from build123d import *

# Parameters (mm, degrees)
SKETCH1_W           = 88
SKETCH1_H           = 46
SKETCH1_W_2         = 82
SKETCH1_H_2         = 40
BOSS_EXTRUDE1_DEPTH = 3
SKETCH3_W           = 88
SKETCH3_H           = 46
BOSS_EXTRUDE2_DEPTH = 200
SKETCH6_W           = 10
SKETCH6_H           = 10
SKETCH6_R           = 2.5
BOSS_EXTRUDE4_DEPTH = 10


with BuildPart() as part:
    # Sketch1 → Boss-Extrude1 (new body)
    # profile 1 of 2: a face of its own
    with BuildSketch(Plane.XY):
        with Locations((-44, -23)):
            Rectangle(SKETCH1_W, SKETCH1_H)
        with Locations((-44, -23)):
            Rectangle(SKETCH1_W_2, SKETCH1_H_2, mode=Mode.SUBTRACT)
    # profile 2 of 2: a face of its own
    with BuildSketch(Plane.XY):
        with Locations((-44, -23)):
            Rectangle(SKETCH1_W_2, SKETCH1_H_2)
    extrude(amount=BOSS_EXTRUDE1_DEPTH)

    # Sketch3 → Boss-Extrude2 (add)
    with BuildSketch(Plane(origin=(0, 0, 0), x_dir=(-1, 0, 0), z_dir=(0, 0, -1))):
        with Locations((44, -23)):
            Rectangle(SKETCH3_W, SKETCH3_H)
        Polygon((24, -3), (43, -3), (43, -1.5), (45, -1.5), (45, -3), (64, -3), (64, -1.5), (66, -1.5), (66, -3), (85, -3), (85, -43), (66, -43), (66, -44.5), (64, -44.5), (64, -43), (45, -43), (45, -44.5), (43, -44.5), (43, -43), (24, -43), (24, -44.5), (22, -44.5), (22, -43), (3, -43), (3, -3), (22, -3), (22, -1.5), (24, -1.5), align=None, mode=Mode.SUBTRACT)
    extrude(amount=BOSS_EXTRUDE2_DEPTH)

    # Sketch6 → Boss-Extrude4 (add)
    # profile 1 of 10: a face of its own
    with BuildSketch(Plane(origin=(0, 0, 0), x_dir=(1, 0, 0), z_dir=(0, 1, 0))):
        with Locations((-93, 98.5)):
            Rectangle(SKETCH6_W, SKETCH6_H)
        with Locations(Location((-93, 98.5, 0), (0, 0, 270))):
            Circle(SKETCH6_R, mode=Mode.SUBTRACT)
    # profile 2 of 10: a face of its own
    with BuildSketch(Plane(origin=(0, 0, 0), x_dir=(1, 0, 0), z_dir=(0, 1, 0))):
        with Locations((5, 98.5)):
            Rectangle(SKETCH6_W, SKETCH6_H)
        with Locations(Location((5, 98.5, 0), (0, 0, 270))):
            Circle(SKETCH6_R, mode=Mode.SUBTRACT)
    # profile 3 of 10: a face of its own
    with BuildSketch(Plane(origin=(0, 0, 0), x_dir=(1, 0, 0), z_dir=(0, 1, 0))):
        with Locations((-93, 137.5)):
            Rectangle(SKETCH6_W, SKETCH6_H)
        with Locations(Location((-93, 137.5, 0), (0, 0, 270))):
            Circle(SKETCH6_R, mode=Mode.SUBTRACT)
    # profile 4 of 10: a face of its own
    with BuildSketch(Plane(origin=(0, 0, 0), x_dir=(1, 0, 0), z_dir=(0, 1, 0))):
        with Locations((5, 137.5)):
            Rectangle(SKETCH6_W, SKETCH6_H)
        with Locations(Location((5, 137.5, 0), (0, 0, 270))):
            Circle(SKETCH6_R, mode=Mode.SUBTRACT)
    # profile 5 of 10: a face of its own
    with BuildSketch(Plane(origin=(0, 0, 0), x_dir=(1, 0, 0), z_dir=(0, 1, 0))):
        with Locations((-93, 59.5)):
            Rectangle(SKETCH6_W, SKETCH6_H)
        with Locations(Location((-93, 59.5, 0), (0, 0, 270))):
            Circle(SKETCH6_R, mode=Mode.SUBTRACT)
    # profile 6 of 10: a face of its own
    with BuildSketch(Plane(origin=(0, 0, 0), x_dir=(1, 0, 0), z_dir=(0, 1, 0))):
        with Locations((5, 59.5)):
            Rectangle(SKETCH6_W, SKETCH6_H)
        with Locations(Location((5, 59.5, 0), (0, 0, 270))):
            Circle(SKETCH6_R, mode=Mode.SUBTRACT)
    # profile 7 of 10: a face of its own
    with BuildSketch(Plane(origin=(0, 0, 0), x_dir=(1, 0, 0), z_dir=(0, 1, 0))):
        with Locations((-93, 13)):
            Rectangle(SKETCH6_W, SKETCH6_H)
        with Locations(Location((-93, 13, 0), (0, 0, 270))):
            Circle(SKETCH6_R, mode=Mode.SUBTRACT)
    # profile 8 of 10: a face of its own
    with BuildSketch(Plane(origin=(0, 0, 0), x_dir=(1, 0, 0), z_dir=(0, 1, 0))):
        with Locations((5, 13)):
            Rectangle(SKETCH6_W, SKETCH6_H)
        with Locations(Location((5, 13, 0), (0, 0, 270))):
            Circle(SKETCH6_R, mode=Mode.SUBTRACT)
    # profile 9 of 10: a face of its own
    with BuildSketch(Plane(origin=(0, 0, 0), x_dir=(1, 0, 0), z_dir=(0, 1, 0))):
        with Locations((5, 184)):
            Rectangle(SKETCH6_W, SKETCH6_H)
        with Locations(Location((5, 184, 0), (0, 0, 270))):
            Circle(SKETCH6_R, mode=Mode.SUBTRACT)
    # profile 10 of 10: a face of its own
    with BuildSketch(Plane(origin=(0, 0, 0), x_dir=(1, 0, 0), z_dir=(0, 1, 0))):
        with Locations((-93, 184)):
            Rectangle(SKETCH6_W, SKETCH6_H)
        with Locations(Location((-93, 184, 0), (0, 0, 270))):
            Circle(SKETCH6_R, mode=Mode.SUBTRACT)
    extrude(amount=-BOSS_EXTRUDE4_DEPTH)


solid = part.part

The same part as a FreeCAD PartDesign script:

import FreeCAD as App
import Part
import Sketcher

doc = App.newDocument("Part")
body = doc.addObject("PartDesign::Body", "Body")

# Sketch on XY plane
sketch1 = body.newObject("Sketcher::SketchObject", "Sketch")
sketch1.AttachmentSupport = (doc.getObject("XY_Plane"), [""])
sketch1.MapMode = "FlatFace"
sketch1.addGeometry(Part.LineSegment(App.Vector(-88, 0, 0), App.Vector(-88, -46, 0)), False)
sketch1.addGeometry(Part.LineSegment(App.Vector(-88, -46, 0), App.Vector(0, -46, 0)), False)
sketch1.addGeometry(Part.LineSegment(App.Vector(0, -46, 0), App.Vector(0, 0, 0)), False)
sketch1.addGeometry(Part.LineSegment(App.Vector(0, 0, 0), App.Vector(-88, 0, 0)), False)
sketch1.addConstraint(Sketcher.Constraint("Coincident", 0, 2, 1, 1))
sketch1.addConstraint(Sketcher.Constraint("Coincident", 1, 2, 2, 1))
sketch1.addConstraint(Sketcher.Constraint("Coincident", 2, 2, 3, 1))
sketch1.addConstraint(Sketcher.Constraint("Coincident", 3, 2, 0, 1))
sketch1.addConstraint(Sketcher.Constraint("Vertical", 0))
sketch1.addConstraint(Sketcher.Constraint("Horizontal", 1))
sketch1.addConstraint(Sketcher.Constraint("Vertical", 2))
sketch1.addConstraint(Sketcher.Constraint("Horizontal", 3))
sketch1.addConstraint(Sketcher.Constraint("Coincident", 2, 2, -1, 1))
sketch1.addConstraint(Sketcher.Constraint("DistanceX", 1, 1, 1, 2, 88.0))
sketch1.addConstraint(Sketcher.Constraint("DistanceY", 0, 2, 0, 1, 46.0))
pad1 = body.newObject("PartDesign::Pad", "Pad")
pad1.Profile = sketch1
pad1.Length = 3

# Sketch on XY plane
sketch2 = body.newObject("Sketcher::SketchObject", "Sketch001")
sketch2.AttachmentSupport = (doc.getObject("XY_Plane"), [""])
sketch2.MapMode = "FlatFace"
sketch2.addGeometry(Part.LineSegment(App.Vector(0, 0, 0), App.Vector(0, -46, 0)), False)
sketch2.addGeometry(Part.LineSegment(App.Vector(0, -46, 0), App.Vector(-88, -46, 0)), False)
sketch2.addGeometry(Part.LineSegment(App.Vector(-88, -46, 0), App.Vector(-88, 0, 0)), False)
sketch2.addGeometry(Part.LineSegment(App.Vector(-88, 0, 0), App.Vector(0, 0, 0)), False)
sketch2.addGeometry(Part.LineSegment(App.Vector(-24, -1.5, 0), App.Vector(-24, -3, 0)), False)
sketch2.addGeometry(Part.LineSegment(App.Vector(-24, -3, 0), App.Vector(-43, -3, 0)), False)
sketch2.addGeometry(Part.LineSegment(App.Vector(-43, -3, 0), App.Vector(-43, -1.5, 0)), False)
sketch2.addGeometry(Part.LineSegment(App.Vector(-43, -1.5, 0), App.Vector(-45, -1.5, 0)), False)
sketch2.addGeometry(Part.LineSegment(App.Vector(-45, -1.5, 0), App.Vector(-45, -3, 0)), False)
sketch2.addGeometry(Part.LineSegment(App.Vector(-45, -3, 0), App.Vector(-64, -3, 0)), False)
sketch2.addGeometry(Part.LineSegment(App.Vector(-64, -3, 0), App.Vector(-64, -1.5, 0)), False)
sketch2.addGeometry(Part.LineSegment(App.Vector(-64, -1.5, 0), App.Vector(-66, -1.5, 0)), False)
sketch2.addGeometry(Part.LineSegment(App.Vector(-66, -1.5, 0), App.Vector(-66, -3, 0)), False)
sketch2.addGeometry(Part.LineSegment(App.Vector(-66, -3, 0), App.Vector(-85, -3, 0)), False)
sketch2.addGeometry(Part.LineSegment(App.Vector(-85, -3, 0), App.Vector(-85, -43, 0)), False)
sketch2.addGeometry(Part.LineSegment(App.Vector(-85, -43, 0), App.Vector(-66, -43, 0)), False)
sketch2.addGeometry(Part.LineSegment(App.Vector(-66, -43, 0), App.Vector(-66, -44.5, 0)), False)
sketch2.addGeometry(Part.LineSegment(App.Vector(-66, -44.5, 0), App.Vector(-64, -44.5, 0)), False)
sketch2.addGeometry(Part.LineSegment(App.Vector(-64, -44.5, 0), App.Vector(-64, -43, 0)), False)
sketch2.addGeometry(Part.LineSegment(App.Vector(-64, -43, 0), App.Vector(-45, -43, 0)), False)
sketch2.addGeometry(Part.LineSegment(App.Vector(-45, -43, 0), App.Vector(-45, -44.5, 0)), False)
sketch2.addGeometry(Part.LineSegment(App.Vector(-45, -44.5, 0), App.Vector(-43, -44.5, 0)), False)
sketch2.addGeometry(Part.LineSegment(App.Vector(-43, -44.5, 0), App.Vector(-43, -43, 0)), False)
sketch2.addGeometry(Part.LineSegment(App.Vector(-43, -43, 0), App.Vector(-24, -43, 0)), False)
sketch2.addGeometry(Part.LineSegment(App.Vector(-24, -43, 0), App.Vector(-24, -44.5, 0)), False)
sketch2.addGeometry(Part.LineSegment(App.Vector(-24, -44.5, 0), App.Vector(-22, -44.5, 0)), False)
sketch2.addGeometry(Part.LineSegment(App.Vector(-22, -44.5, 0), App.Vector(-22, -43, 0)), False)
sketch2.addGeometry(Part.LineSegment(App.Vector(-22, -43, 0), App.Vector(-3, -43, 0)), False)
sketch2.addGeometry(Part.LineSegment(App.Vector(-3, -43, 0), App.Vector(-3, -3, 0)), False)
sketch2.addGeometry(Part.LineSegment(App.Vector(-3, -3, 0), App.Vector(-22, -3, 0)), False)
sketch2.addGeometry(Part.LineSegment(App.Vector(-22, -3, 0), App.Vector(-22, -1.5, 0)), False)
sketch2.addGeometry(Part.LineSegment(App.Vector(-22, -1.5, 0), App.Vector(-24, -1.5, 0)), False)
sketch2.addConstraint(Sketcher.Constraint("Coincident", 0, 2, 1, 1))
sketch2.addConstraint(Sketcher.Constraint("Coincident", 1, 2, 2, 1))
sketch2.addConstraint(Sketcher.Constraint("Coincident", 2, 2, 3, 1))
sketch2.addConstraint(Sketcher.Constraint("Coincident", 3, 2, 0, 1))
sketch2.addConstraint(Sketcher.Constraint("Coincident", 4, 2, 5, 1))
sketch2.addConstraint(Sketcher.Constraint("Coincident", 5, 2, 6, 1))
sketch2.addConstraint(Sketcher.Constraint("Coincident", 6, 2, 7, 1))
sketch2.addConstraint(Sketcher.Constraint("Coincident", 7, 2, 8, 1))
sketch2.addConstraint(Sketcher.Constraint("Coincident", 8, 2, 9, 1))
sketch2.addConstraint(Sketcher.Constraint("Coincident", 9, 2, 10, 1))
sketch2.addConstraint(Sketcher.Constraint("Coincident", 10, 2, 11, 1))
sketch2.addConstraint(Sketcher.Constraint("Coincident", 11, 2, 12, 1))
sketch2.addConstraint(Sketcher.Constraint("Coincident", 12, 2, 13, 1))
sketch2.addConstraint(Sketcher.Constraint("Coincident", 13, 2, 14, 1))
sketch2.addConstraint(Sketcher.Constraint("Coincident", 14, 2, 15, 1))
sketch2.addConstraint(Sketcher.Constraint("Coincident", 15, 2, 16, 1))
sketch2.addConstraint(Sketcher.Constraint("Coincident", 16, 2, 17, 1))
sketch2.addConstraint(Sketcher.Constraint("Coincident", 17, 2, 18, 1))
sketch2.addConstraint(Sketcher.Constraint("Coincident", 18, 2, 19, 1))
sketch2.addConstraint(Sketcher.Constraint("Coincident", 19, 2, 20, 1))
sketch2.addConstraint(Sketcher.Constraint("Coincident", 20, 2, 21, 1))
sketch2.addConstraint(Sketcher.Constraint("Coincident", 21, 2, 22, 1))
sketch2.addConstraint(Sketcher.Constraint("Coincident", 22, 2, 23, 1))
sketch2.addConstraint(Sketcher.Constraint("Coincident", 23, 2, 24, 1))
sketch2.addConstraint(Sketcher.Constraint("Coincident", 24, 2, 25, 1))
sketch2.addConstraint(Sketcher.Constraint("Coincident", 25, 2, 26, 1))
sketch2.addConstraint(Sketcher.Constraint("Coincident", 26, 2, 27, 1))
sketch2.addConstraint(Sketcher.Constraint("Coincident", 27, 2, 28, 1))
sketch2.addConstraint(Sketcher.Constraint("Coincident", 28, 2, 29, 1))
sketch2.addConstraint(Sketcher.Constraint("Coincident", 29, 2, 30, 1))
sketch2.addConstraint(Sketcher.Constraint("Coincident", 30, 2, 31, 1))
sketch2.addConstraint(Sketcher.Constraint("Coincident", 31, 2, 4, 1))
sketch2.addConstraint(Sketcher.Constraint("Vertical", 0))
sketch2.addConstraint(Sketcher.Constraint("Horizontal", 1))
sketch2.addConstraint(Sketcher.Constraint("Vertical", 2))
sketch2.addConstraint(Sketcher.Constraint("Horizontal", 3))
sketch2.addConstraint(Sketcher.Constraint("Vertical", 4))
sketch2.addConstraint(Sketcher.Constraint("Horizontal", 5))
sketch2.addConstraint(Sketcher.Constraint("Vertical", 6))
sketch2.addConstraint(Sketcher.Constraint("Horizontal", 7))
sketch2.addConstraint(Sketcher.Constraint("Vertical", 8))
sketch2.addConstraint(Sketcher.Constraint("Horizontal", 9))
sketch2.addConstraint(Sketcher.Constraint("Vertical", 10))
sketch2.addConstraint(Sketcher.Constraint("Horizontal", 11))
sketch2.addConstraint(Sketcher.Constraint("Vertical", 12))
sketch2.addConstraint(Sketcher.Constraint("Horizontal", 13))
sketch2.addConstraint(Sketcher.Constraint("Vertical", 14))
sketch2.addConstraint(Sketcher.Constraint("Horizontal", 15))
sketch2.addConstraint(Sketcher.Constraint("Vertical", 16))
sketch2.addConstraint(Sketcher.Constraint("Horizontal", 17))
sketch2.addConstraint(Sketcher.Constraint("Vertical", 18))
sketch2.addConstraint(Sketcher.Constraint("Horizontal", 19))
sketch2.addConstraint(Sketcher.Constraint("Vertical", 20))
sketch2.addConstraint(Sketcher.Constraint("Horizontal", 21))
sketch2.addConstraint(Sketcher.Constraint("Vertical", 22))
sketch2.addConstraint(Sketcher.Constraint("Horizontal", 23))
sketch2.addConstraint(Sketcher.Constraint("Vertical", 24))
sketch2.addConstraint(Sketcher.Constraint("Horizontal", 25))
sketch2.addConstraint(Sketcher.Constraint("Vertical", 26))
sketch2.addConstraint(Sketcher.Constraint("Horizontal", 27))
sketch2.addConstraint(Sketcher.Constraint("Vertical", 28))
sketch2.addConstraint(Sketcher.Constraint("Horizontal", 29))
sketch2.addConstraint(Sketcher.Constraint("Vertical", 30))
sketch2.addConstraint(Sketcher.Constraint("Horizontal", 31))
sketch2.addConstraint(Sketcher.Constraint("Coincident", 3, 2, -1, 1))
sketch2.addConstraint(Sketcher.Constraint("Horizontal", 5, 2, 8, 2))
sketch2.addConstraint(Sketcher.Constraint("Horizontal", 7, 2, 10, 2))
sketch2.addConstraint(Sketcher.Constraint("Horizontal", 9, 2, 12, 2))
sketch2.addConstraint(Sketcher.Constraint("Horizontal", 15, 2, 18, 2))
sketch2.addConstraint(Sketcher.Constraint("Horizontal", 17, 2, 20, 2))
sketch2.addConstraint(Sketcher.Constraint("Horizontal", 19, 2, 22, 2))
sketch2.addConstraint(Sketcher.Constraint("Horizontal", 21, 2, 24, 2))
sketch2.addConstraint(Sketcher.Constraint("Horizontal", 23, 2, 26, 2))
sketch2.addConstraint(Sketcher.Constraint("Horizontal", 13, 2, 28, 2))
sketch2.addConstraint(Sketcher.Constraint("Horizontal", 11, 2, 30, 2))
sketch2.addConstraint(Sketcher.Constraint("Vertical", 12, 2, 15, 2))
sketch2.addConstraint(Sketcher.Constraint("Vertical", 10, 2, 17, 2))
sketch2.addConstraint(Sketcher.Constraint("Vertical", 8, 2, 19, 2))
sketch2.addConstraint(Sketcher.Constraint("Vertical", 6, 2, 21, 2))
sketch2.addConstraint(Sketcher.Constraint("Vertical", 4, 2, 23, 2))
sketch2.addConstraint(Sketcher.Constraint("Vertical", 26, 2, 29, 2))
sketch2.addConstraint(Sketcher.Constraint("Equal", 5, 9))
sketch2.addConstraint(Sketcher.Constraint("Equal", 7, 11))
sketch2.addConstraint(Sketcher.Constraint("Equal", 9, 13))
sketch2.addConstraint(Sketcher.Constraint("Equal", 21, 25))
sketch2.addConstraint(Sketcher.Constraint("Equal", 23, 27))
sketch2.addConstraint(Sketcher.Constraint("Equal", 12, 16))
sketch2.addConstraint(Sketcher.Constraint("DistanceX", 1, 2, 1, 1, 88.0))
sketch2.addConstraint(Sketcher.Constraint("DistanceX", 5, 2, 5, 1, 19.0))
sketch2.addConstraint(Sketcher.Constraint("DistanceX", 7, 2, 7, 1, 2.0))
sketch2.addConstraint(Sketcher.Constraint("DistanceY", 0, 2, 0, 1, 46.0))
sketch2.addConstraint(Sketcher.Constraint("DistanceY", 14, 2, 14, 1, 40.0))
sketch2.addConstraint(Sketcher.Constraint("DistanceY", 4, 2, 4, 1, 1.5))
sketch2.addConstraint(Sketcher.Constraint("DistanceX", 4, 2, -1, 1, 24.0))
sketch2.addConstraint(Sketcher.Constraint("DistanceY", 4, 2, -1, 1, 3.0))
pad2 = body.newObject("PartDesign::Pad", "Pad001")
pad2.Profile = sketch2
pad2.Length = 200
pad2.Reversed = True

# Sketch on XZ plane
sketch3 = body.newObject("Sketcher::SketchObject", "Sketch002")
sketch3.AttachmentSupport = (doc.getObject("XZ_Plane"), [""])
sketch3.MapMode = "FlatFace"
sketch3.addGeometry(Part.LineSegment(App.Vector(-98, -103.5, 0), App.Vector(-98, -93.5, 0)), False)
sketch3.addGeometry(Part.LineSegment(App.Vector(-98, -93.5, 0), App.Vector(-88, -93.5, 0)), False)
sketch3.addGeometry(Part.LineSegment(App.Vector(-88, -93.5, 0), App.Vector(-88, -103.5, 0)), False)
sketch3.addGeometry(Part.LineSegment(App.Vector(-88, -103.5, 0), App.Vector(-98, -103.5, 0)), False)
sketch3.addGeometry(Part.Circle(App.Vector(-93, -98.5, 0), App.Vector(0, 0, 1), 2.5), False)
sketch3.addGeometry(Part.LineSegment(App.Vector(0, -103.5, 0), App.Vector(0, -93.5, 0)), False)
sketch3.addGeometry(Part.LineSegment(App.Vector(0, -93.5, 0), App.Vector(10, -93.5, 0)), False)
sketch3.addGeometry(Part.LineSegment(App.Vector(10, -93.5, 0), App.Vector(10, -103.5, 0)), False)
sketch3.addGeometry(Part.LineSegment(App.Vector(10, -103.5, 0), App.Vector(0, -103.5, 0)), False)
sketch3.addGeometry(Part.Circle(App.Vector(5, -98.5, 0), App.Vector(0, 0, 1), 2.5), False)
sketch3.addGeometry(Part.LineSegment(App.Vector(-98, -142.5, 0), App.Vector(-98, -132.5, 0)), False)
sketch3.addGeometry(Part.LineSegment(App.Vector(-98, -132.5, 0), App.Vector(-88, -132.5, 0)), False)
sketch3.addGeometry(Part.LineSegment(App.Vector(-88, -132.5, 0), App.Vector(-88, -142.5, 0)), False)
sketch3.addGeometry(Part.LineSegment(App.Vector(-88, -142.5, 0), App.Vector(-98, -142.5, 0)), False)
sketch3.addGeometry(Part.Circle(App.Vector(-93, -137.5, 0), App.Vector(0, 0, 1), 2.5), False)
sketch3.addGeometry(Part.LineSegment(App.Vector(0, -142.5, 0), App.Vector(0, -132.5, 0)), False)
sketch3.addGeometry(Part.LineSegment(App.Vector(0, -132.5, 0), App.Vector(10, -132.5, 0)), False)
sketch3.addGeometry(Part.LineSegment(App.Vector(10, -132.5, 0), App.Vector(10, -142.5, 0)), False)
sketch3.addGeometry(Part.LineSegment(App.Vector(10, -142.5, 0), App.Vector(0, -142.5, 0)), False)
sketch3.addGeometry(Part.Circle(App.Vector(5, -137.5, 0), App.Vector(0, 0, 1), 2.5), False)
sketch3.addGeometry(Part.LineSegment(App.Vector(-98, -64.5, 0), App.Vector(-98, -54.5, 0)), False)
sketch3.addGeometry(Part.LineSegment(App.Vector(-98, -54.5, 0), App.Vector(-88, -54.5, 0)), False)
sketch3.addGeometry(Part.LineSegment(App.Vector(-88, -54.5, 0), App.Vector(-88, -64.5, 0)), False)
sketch3.addGeometry(Part.LineSegment(App.Vector(-88, -64.5, 0), App.Vector(-98, -64.5, 0)), False)
sketch3.addGeometry(Part.Circle(App.Vector(-93, -59.5, 0), App.Vector(0, 0, 1), 2.5), False)
sketch3.addGeometry(Part.LineSegment(App.Vector(0, -64.5, 0), App.Vector(0, -54.5, 0)), False)
sketch3.addGeometry(Part.LineSegment(App.Vector(0, -54.5, 0), App.Vector(10, -54.5, 0)), False)
sketch3.addGeometry(Part.LineSegment(App.Vector(10, -54.5, 0), App.Vector(10, -64.5, 0)), False)
sketch3.addGeometry(Part.LineSegment(App.Vector(10, -64.5, 0), App.Vector(0, -64.5, 0)), False)
sketch3.addGeometry(Part.Circle(App.Vector(5, -59.5, 0), App.Vector(0, 0, 1), 2.5), False)
sketch3.addGeometry(Part.LineSegment(App.Vector(-98, -18, 0), App.Vector(-98, -8, 0)), False)
sketch3.addGeometry(Part.LineSegment(App.Vector(-98, -8, 0), App.Vector(-88, -8, 0)), False)
sketch3.addGeometry(Part.LineSegment(App.Vector(-88, -8, 0), App.Vector(-88, -18, 0)), False)
sketch3.addGeometry(Part.LineSegment(App.Vector(-88, -18, 0), App.Vector(-98, -18, 0)), False)
sketch3.addGeometry(Part.Circle(App.Vector(-93, -13, 0), App.Vector(0, 0, 1), 2.5), False)
sketch3.addGeometry(Part.LineSegment(App.Vector(0, -18, 0), App.Vector(0, -8, 0)), False)
sketch3.addGeometry(Part.LineSegment(App.Vector(0, -8, 0), App.Vector(10, -8, 0)), False)
sketch3.addGeometry(Part.LineSegment(App.Vector(10, -8, 0), App.Vector(10, -18, 0)), False)
sketch3.addGeometry(Part.LineSegment(App.Vector(10, -18, 0), App.Vector(0, -18, 0)), False)
sketch3.addGeometry(Part.Circle(App.Vector(5, -13, 0), App.Vector(0, 0, 1), 2.5), False)
sketch3.addGeometry(Part.LineSegment(App.Vector(0, -189, 0), App.Vector(0, -179, 0)), False)
sketch3.addGeometry(Part.LineSegment(App.Vector(0, -179, 0), App.Vector(10, -179, 0)), False)
sketch3.addGeometry(Part.LineSegment(App.Vector(10, -179, 0), App.Vector(10, -189, 0)), False)
sketch3.addGeometry(Part.LineSegment(App.Vector(10, -189, 0), App.Vector(0, -189, 0)), False)
sketch3.addGeometry(Part.Circle(App.Vector(5, -184, 0), App.Vector(0, 0, 1), 2.5), False)
sketch3.addGeometry(Part.LineSegment(App.Vector(-98, -189, 0), App.Vector(-98, -179, 0)), False)
sketch3.addGeometry(Part.LineSegment(App.Vector(-98, -179, 0), App.Vector(-88, -179, 0)), False)
sketch3.addGeometry(Part.LineSegment(App.Vector(-88, -179, 0), App.Vector(-88, -189, 0)), False)
sketch3.addGeometry(Part.LineSegment(App.Vector(-88, -189, 0), App.Vector(-98, -189, 0)), False)
sketch3.addGeometry(Part.Circle(App.Vector(-93, -184, 0), App.Vector(0, 0, 1), 2.5), False)
sketch3.addConstraint(Sketcher.Constraint("Coincident", 0, 2, 1, 1))
sketch3.addConstraint(Sketcher.Constraint("Coincident", 1, 2, 2, 1))
sketch3.addConstraint(Sketcher.Constraint("Coincident", 2, 2, 3, 1))
sketch3.addConstraint(Sketcher.Constraint("Coincident", 3, 2, 0, 1))
sketch3.addConstraint(Sketcher.Constraint("Coincident", 5, 2, 6, 1))
sketch3.addConstraint(Sketcher.Constraint("Coincident", 6, 2, 7, 1))
sketch3.addConstraint(Sketcher.Constraint("Coincident", 7, 2, 8, 1))
sketch3.addConstraint(Sketcher.Constraint("Coincident", 8, 2, 5, 1))
sketch3.addConstraint(Sketcher.Constraint("Coincident", 10, 2, 11, 1))
sketch3.addConstraint(Sketcher.Constraint("Coincident", 11, 2, 12, 1))
sketch3.addConstraint(Sketcher.Constraint("Coincident", 12, 2, 13, 1))
sketch3.addConstraint(Sketcher.Constraint("Coincident", 13, 2, 10, 1))
sketch3.addConstraint(Sketcher.Constraint("Coincident", 15, 2, 16, 1))
sketch3.addConstraint(Sketcher.Constraint("Coincident", 16, 2, 17, 1))
sketch3.addConstraint(Sketcher.Constraint("Coincident", 17, 2, 18, 1))
sketch3.addConstraint(Sketcher.Constraint("Coincident", 18, 2, 15, 1))
sketch3.addConstraint(Sketcher.Constraint("Coincident", 20, 2, 21, 1))
sketch3.addConstraint(Sketcher.Constraint("Coincident", 21, 2, 22, 1))
sketch3.addConstraint(Sketcher.Constraint("Coincident", 22, 2, 23, 1))
sketch3.addConstraint(Sketcher.Constraint("Coincident", 23, 2, 20, 1))
sketch3.addConstraint(Sketcher.Constraint("Coincident", 25, 2, 26, 1))
sketch3.addConstraint(Sketcher.Constraint("Coincident", 26, 2, 27, 1))
sketch3.addConstraint(Sketcher.Constraint("Coincident", 27, 2, 28, 1))
sketch3.addConstraint(Sketcher.Constraint("Coincident", 28, 2, 25, 1))
sketch3.addConstraint(Sketcher.Constraint("Coincident", 30, 2, 31, 1))
sketch3.addConstraint(Sketcher.Constraint("Coincident", 31, 2, 32, 1))
sketch3.addConstraint(Sketcher.Constraint("Coincident", 32, 2, 33, 1))
sketch3.addConstraint(Sketcher.Constraint("Coincident", 33, 2, 30, 1))
sketch3.addConstraint(Sketcher.Constraint("Coincident", 35, 2, 36, 1))
sketch3.addConstraint(Sketcher.Constraint("Coincident", 36, 2, 37, 1))
sketch3.addConstraint(Sketcher.Constraint("Coincident", 37, 2, 38, 1))
sketch3.addConstraint(Sketcher.Constraint("Coincident", 38, 2, 35, 1))
sketch3.addConstraint(Sketcher.Constraint("Coincident", 40, 2, 41, 1))
sketch3.addConstraint(Sketcher.Constraint("Coincident", 41, 2, 42, 1))
sketch3.addConstraint(Sketcher.Constraint("Coincident", 42, 2, 43, 1))
sketch3.addConstraint(Sketcher.Constraint("Coincident", 43, 2, 40, 1))
sketch3.addConstraint(Sketcher.Constraint("Coincident", 45, 2, 46, 1))
sketch3.addConstraint(Sketcher.Constraint("Coincident", 46, 2, 47, 1))
sketch3.addConstraint(Sketcher.Constraint("Coincident", 47, 2, 48, 1))
sketch3.addConstraint(Sketcher.Constraint("Coincident", 48, 2, 45, 1))
sketch3.addConstraint(Sketcher.Constraint("Vertical", 0))
sketch3.addConstraint(Sketcher.Constraint("Horizontal", 1))
sketch3.addConstraint(Sketcher.Constraint("Vertical", 2))
sketch3.addConstraint(Sketcher.Constraint("Horizontal", 3))
sketch3.addConstraint(Sketcher.Constraint("Vertical", 5))
sketch3.addConstraint(Sketcher.Constraint("Horizontal", 6))
sketch3.addConstraint(Sketcher.Constraint("Vertical", 7))
sketch3.addConstraint(Sketcher.Constraint("Horizontal", 8))
sketch3.addConstraint(Sketcher.Constraint("Vertical", 10))
sketch3.addConstraint(Sketcher.Constraint("Horizontal", 11))
sketch3.addConstraint(Sketcher.Constraint("Vertical", 12))
sketch3.addConstraint(Sketcher.Constraint("Horizontal", 13))
sketch3.addConstraint(Sketcher.Constraint("Vertical", 15))
sketch3.addConstraint(Sketcher.Constraint("Horizontal", 16))
sketch3.addConstraint(Sketcher.Constraint("Vertical", 17))
sketch3.addConstraint(Sketcher.Constraint("Horizontal", 18))
sketch3.addConstraint(Sketcher.Constraint("Vertical", 20))
sketch3.addConstraint(Sketcher.Constraint("Horizontal", 21))
sketch3.addConstraint(Sketcher.Constraint("Vertical", 22))
sketch3.addConstraint(Sketcher.Constraint("Horizontal", 23))
sketch3.addConstraint(Sketcher.Constraint("Vertical", 25))
sketch3.addConstraint(Sketcher.Constraint("Horizontal", 26))
sketch3.addConstraint(Sketcher.Constraint("Vertical", 27))
sketch3.addConstraint(Sketcher.Constraint("Horizontal", 28))
sketch3.addConstraint(Sketcher.Constraint("Vertical", 30))
sketch3.addConstraint(Sketcher.Constraint("Horizontal", 31))
sketch3.addConstraint(Sketcher.Constraint("Vertical", 32))
sketch3.addConstraint(Sketcher.Constraint("Horizontal", 33))
sketch3.addConstraint(Sketcher.Constraint("Vertical", 35))
sketch3.addConstraint(Sketcher.Constraint("Horizontal", 36))
sketch3.addConstraint(Sketcher.Constraint("Vertical", 37))
sketch3.addConstraint(Sketcher.Constraint("Horizontal", 38))
sketch3.addConstraint(Sketcher.Constraint("Vertical", 40))
sketch3.addConstraint(Sketcher.Constraint("Horizontal", 41))
sketch3.addConstraint(Sketcher.Constraint("Vertical", 42))
sketch3.addConstraint(Sketcher.Constraint("Horizontal", 43))
sketch3.addConstraint(Sketcher.Constraint("Vertical", 45))
sketch3.addConstraint(Sketcher.Constraint("Horizontal", 46))
sketch3.addConstraint(Sketcher.Constraint("Vertical", 47))
sketch3.addConstraint(Sketcher.Constraint("Horizontal", 48))
sketch3.addConstraint(Sketcher.Constraint("Equal", 4, 9))
sketch3.addConstraint(Sketcher.Constraint("Equal", 9, 14))
sketch3.addConstraint(Sketcher.Constraint("Equal", 14, 19))
sketch3.addConstraint(Sketcher.Constraint("Equal", 19, 24))
sketch3.addConstraint(Sketcher.Constraint("Equal", 24, 29))
sketch3.addConstraint(Sketcher.Constraint("Equal", 29, 34))
sketch3.addConstraint(Sketcher.Constraint("Equal", 34, 39))
sketch3.addConstraint(Sketcher.Constraint("Equal", 39, 44))
sketch3.addConstraint(Sketcher.Constraint("Equal", 44, 49))
sketch3.addConstraint(Sketcher.Constraint("PointOnObject", 5, 2, -2))
sketch3.addConstraint(Sketcher.Constraint("PointOnObject", 15, 2, -2))
sketch3.addConstraint(Sketcher.Constraint("PointOnObject", 25, 2, -2))
sketch3.addConstraint(Sketcher.Constraint("PointOnObject", 35, 2, -2))
sketch3.addConstraint(Sketcher.Constraint("PointOnObject", 40, 2, -2))
sketch3.addConstraint(Sketcher.Constraint("Horizontal", 4, 3, 9, 3))
sketch3.addConstraint(Sketcher.Constraint("Horizontal", 14, 3, 19, 3))
sketch3.addConstraint(Sketcher.Constraint("Horizontal", 24, 3, 29, 3))
sketch3.addConstraint(Sketcher.Constraint("Horizontal", 34, 3, 39, 3))
sketch3.addConstraint(Sketcher.Constraint("Horizontal", 44, 3, 49, 3))
sketch3.addConstraint(Sketcher.Constraint("Horizontal", 1, 2, 5, 2))
sketch3.addConstraint(Sketcher.Constraint("Horizontal", 3, 2, 7, 2))
sketch3.addConstraint(Sketcher.Constraint("Horizontal", 11, 2, 15, 2))
sketch3.addConstraint(Sketcher.Constraint("Horizontal", 13, 2, 17, 2))
sketch3.addConstraint(Sketcher.Constraint("Horizontal", 21, 2, 25, 2))
sketch3.addConstraint(Sketcher.Constraint("Horizontal", 23, 2, 27, 2))
sketch3.addConstraint(Sketcher.Constraint("Horizontal", 31, 2, 35, 2))
sketch3.addConstraint(Sketcher.Constraint("Horizontal", 33, 2, 37, 2))
sketch3.addConstraint(Sketcher.Constraint("Horizontal", 41, 2, 45, 2))
sketch3.addConstraint(Sketcher.Constraint("Horizontal", 43, 2, 47, 2))
sketch3.addConstraint(Sketcher.Constraint("Vertical", 4, 3, 14, 3))
sketch3.addConstraint(Sketcher.Constraint("Vertical", 9, 3, 19, 3))
sketch3.addConstraint(Sketcher.Constraint("Vertical", 14, 3, 24, 3))
sketch3.addConstraint(Sketcher.Constraint("Vertical", 19, 3, 29, 3))
sketch3.addConstraint(Sketcher.Constraint("Vertical", 24, 3, 34, 3))
sketch3.addConstraint(Sketcher.Constraint("Vertical", 29, 3, 39, 3))
sketch3.addConstraint(Sketcher.Constraint("Vertical", 39, 3, 44, 3))
sketch3.addConstraint(Sketcher.Constraint("Vertical", 34, 3, 49, 3))
sketch3.addConstraint(Sketcher.Constraint("Vertical", 3, 2, 10, 2))
sketch3.addConstraint(Sketcher.Constraint("Vertical", 2, 2, 11, 2))
sketch3.addConstraint(Sketcher.Constraint("Vertical", 7, 2, 16, 2))
sketch3.addConstraint(Sketcher.Constraint("Vertical", 13, 2, 20, 2))
sketch3.addConstraint(Sketcher.Constraint("Vertical", 12, 2, 21, 2))
sketch3.addConstraint(Sketcher.Constraint("Vertical", 17, 2, 26, 2))
sketch3.addConstraint(Sketcher.Constraint("Vertical", 23, 2, 30, 2))
sketch3.addConstraint(Sketcher.Constraint("Vertical", 22, 2, 31, 2))
sketch3.addConstraint(Sketcher.Constraint("Vertical", 27, 2, 36, 2))
sketch3.addConstraint(Sketcher.Constraint("Vertical", 37, 2, 41, 2))
sketch3.addConstraint(Sketcher.Constraint("Vertical", 33, 2, 45, 2))
sketch3.addConstraint(Sketcher.Constraint("Vertical", 32, 2, 46, 2))
sketch3.addConstraint(Sketcher.Constraint("Equal", 3, 6))
sketch3.addConstraint(Sketcher.Constraint("Equal", 48, 0))
sketch3.addConstraint(Sketcher.Constraint("Equal", 7, 10))
sketch3.addConstraint(Sketcher.Constraint("Equal", 17, 20))
sketch3.addConstraint(Sketcher.Constraint("Equal", 27, 30))
sketch3.addConstraint(Sketcher.Constraint("Equal", 37, 40))
sketch3.addConstraint(Sketcher.Constraint("Diameter", 4, 5.0))
sketch3.addConstraint(Sketcher.Constraint("DistanceX", 1, 1, 1, 2, 10.0))
sketch3.addConstraint(Sketcher.Constraint("DistanceX", 4, 3, -1, 1, 93.0))
sketch3.addConstraint(Sketcher.Constraint("DistanceX", -1, 1, 9, 3, 5.0))
sketch3.addConstraint(Sketcher.Constraint("DistanceY", 34, 3, -1, 1, 13.0))
sketch3.addConstraint(Sketcher.Constraint("DistanceY", 44, 3, -1, 1, 184.0))
sketch3.addConstraint(Sketcher.Constraint("DistanceX", 0, 2, -1, 1, 98.0))
sketch3.addConstraint(Sketcher.Constraint("DistanceY", 30, 2, -1, 1, 8.0))
sketch3.addConstraint(Sketcher.Constraint("DistanceY", 40, 2, -1, 1, 179.0))
sketch3.addConstraint(Sketcher.Constraint("DistanceY", 14, 3, 4, 3, 39.0))
sketch3.addConstraint(Sketcher.Constraint("DistanceY", 4, 3, 24, 3, 39.0))
sketch3.addConstraint(Sketcher.Constraint("DistanceY", 4, 3, 0, 2, 5.0))
sketch3.addConstraint(Sketcher.Constraint("DistanceY", 14, 3, 10, 2, 5.0))
sketch3.addConstraint(Sketcher.Constraint("DistanceY", 24, 3, 20, 2, 5.0))
sketch3.addConstraint(Sketcher.Constraint("DistanceY", 4, 3, -1, 1, 98.5))
pad3 = body.newObject("PartDesign::Pad", "Pad002")
pad3.Profile = sketch3
pad3.Length = 10

doc.recompute()
